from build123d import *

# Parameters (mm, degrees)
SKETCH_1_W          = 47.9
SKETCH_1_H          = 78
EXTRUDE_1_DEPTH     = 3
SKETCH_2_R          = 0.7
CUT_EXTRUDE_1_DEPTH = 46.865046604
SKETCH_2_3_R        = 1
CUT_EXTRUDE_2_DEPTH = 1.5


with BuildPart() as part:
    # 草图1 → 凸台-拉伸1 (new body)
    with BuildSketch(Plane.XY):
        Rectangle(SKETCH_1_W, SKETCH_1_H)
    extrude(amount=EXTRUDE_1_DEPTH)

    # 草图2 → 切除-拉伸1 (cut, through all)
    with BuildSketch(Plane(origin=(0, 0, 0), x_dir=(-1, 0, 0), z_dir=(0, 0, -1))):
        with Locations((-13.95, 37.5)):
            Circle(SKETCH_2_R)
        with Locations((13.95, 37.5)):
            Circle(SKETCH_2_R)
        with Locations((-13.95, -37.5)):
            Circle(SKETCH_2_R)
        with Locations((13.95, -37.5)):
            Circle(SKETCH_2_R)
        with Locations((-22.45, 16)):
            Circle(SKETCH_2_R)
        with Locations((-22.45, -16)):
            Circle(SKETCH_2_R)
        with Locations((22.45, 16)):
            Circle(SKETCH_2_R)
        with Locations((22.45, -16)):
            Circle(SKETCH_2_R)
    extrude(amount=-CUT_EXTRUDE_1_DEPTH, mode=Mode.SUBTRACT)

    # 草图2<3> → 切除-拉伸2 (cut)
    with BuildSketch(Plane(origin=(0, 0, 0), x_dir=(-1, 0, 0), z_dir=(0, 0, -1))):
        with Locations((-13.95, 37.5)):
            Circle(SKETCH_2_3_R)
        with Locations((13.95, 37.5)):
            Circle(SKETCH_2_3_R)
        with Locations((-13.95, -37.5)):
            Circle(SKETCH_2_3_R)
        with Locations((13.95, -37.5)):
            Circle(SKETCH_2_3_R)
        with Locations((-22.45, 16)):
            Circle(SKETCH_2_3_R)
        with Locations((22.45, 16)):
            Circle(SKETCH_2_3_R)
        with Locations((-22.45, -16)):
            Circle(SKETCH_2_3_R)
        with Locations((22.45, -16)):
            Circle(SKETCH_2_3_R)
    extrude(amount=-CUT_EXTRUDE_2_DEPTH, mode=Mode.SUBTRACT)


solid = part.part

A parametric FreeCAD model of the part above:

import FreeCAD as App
import Part
import Sketcher

V = App.Vector
Q = App.Units.Quantity


def add_polygon(sketch, points):
    """Adds a closed chain of lines whose ends are joined by coincident constraints."""
    first, n = sketch.GeometryCount, len(points)
    for a, b in zip(points, points[1:] + points[:1]):
        sketch.addGeometry(Part.LineSegment(App.Vector(*a, 0), App.Vector(*b, 0)), False)
    for i in range(n):
        sketch.addConstraint(Sketcher.Constraint("Coincident", first + i, 2, first + (i + 1) % n, 1))

doc = App.newDocument("Part")
body = doc.addObject("PartDesign::Body", "Body")

# Sketch on XY plane
sketch1 = body.newObject("Sketcher::SketchObject", "Sketch")
sketch1.AttachmentSupport = (doc.getObject("XY_Plane"), [""])
sketch1.MapMode = "FlatFace"
add_polygon(sketch1, [(-24, 39), (-24, -39), (24, -39), (24, 39)])  # lines 0-3
sketch1.addConstraint(Sketcher.Constraint("Vertical", 0))
sketch1.addConstraint(Sketcher.Constraint("Horizontal", 1))
sketch1.addConstraint(Sketcher.Constraint("Vertical", 2))
sketch1.addConstraint(Sketcher.Constraint("Horizontal", 3))
sketch1.addConstraint(Sketcher.Constraint("Symmetric", 0, 2, 2, 2, -1, 1))
sketch1.addConstraint(Sketcher.Constraint("DistanceY", 0, 2, 0, 1, Q("78 mm")))
sketch1.addConstraint(Sketcher.Constraint("DistanceX", 1, 1, 1, 2, Q("47.9 mm")))
pad1 = body.newObject("PartDesign::Pad", "Pad")
pad1.Profile = sketch1
pad1.Length = 3

# Sketch on XY plane
sketch2 = body.newObject("Sketcher::SketchObject", "Sketch001")
sketch2.AttachmentSupport = (doc.getObject("XY_Plane"), [""])
sketch2.MapMode = "FlatFace"
sketch2.addGeometry(Part.Circle(V(13.9, 37.5, 0), V(0, 0, 1), 0.7), False)
sketch2.addGeometry(Part.Circle(V(-13.9, 37.5, 0), V(0, 0, 1), 0.7), False)
sketch2.addGeometry(Part.Circle(V(13.9, -37.5, 0), V(0, 0, 1), 0.7), False)
sketch2.addGeometry(Part.Circle(V(-13.9, -37.5, 0), V(0, 0, 1), 0.7), False)
sketch2.addGeometry(Part.Circle(V(22.4, 16, 0), V(0, 0, 1), 0.7), False)
sketch2.addGeometry(Part.Circle(V(22.4, -16, 0), V(0, 0, 1), 0.7), False)
sketch2.addGeometry(Part.Circle(V(-22.4, 16, 0), V(0, 0, 1), 0.7), False)
sketch2.addGeometry(Part.Circle(V(-22.4, -16, 0), V(0, 0, 1), 0.7), False)
sketch2.addConstraint(Sketcher.Constraint("Equal", 0, 1))
sketch2.addConstraint(Sketcher.Constraint("Equal", 1, 2))
sketch2.addConstraint(Sketcher.Constraint("Equal", 2, 3))
sketch2.addConstraint(Sketcher.Constraint("Equal", 3, 4))
sketch2.addConstraint(Sketcher.Constraint("Equal", 4, 5))
sketch2.addConstraint(Sketcher.Constraint("Equal", 5, 6))
sketch2.addConstraint(Sketcher.Constraint("Equal", 6, 7))
sketch2.addConstraint(Sketcher.Constraint("Symmetric", 1, 3, 2, 3, -1, 1))
sketch2.addConstraint(Sketcher.Constraint("Symmetric", 0, 3, 3, 3, -1, 1))
sketch2.addConstraint(Sketcher.Constraint("Symmetric", 5, 3, 6, 3, -1, 1))
sketch2.addConstraint(Sketcher.Constraint("Symmetric", 4, 3, 7, 3, -1, 1))
sketch2.addConstraint(Sketcher.Constraint("Symmetric", 0, 3, 1, 3, -2))
sketch2.addConstraint(Sketcher.Constraint("Symmetric", 4, 3, 6, 3, -2))
sketch2.addConstraint(Sketcher.Constraint("Diameter", 0, Q("1.4 mm")))
sketch2.addConstraint(Sketcher.Constraint("DistanceY", -1, 1, 4, 3, Q("16 mm")))
sketch2.addConstraint(Sketcher.Constraint("DistanceY", 2, 3, 0, 3, Q("75 mm")))
sketch2.addConstraint(Sketcher.Constraint("DistanceX", 1, 3, 0, 3, Q("27.9 mm")))
sketch2.addConstraint(Sketcher.Constraint("DistanceX", 0, 3, 4, 3, Q("8.5 mm")))
pocket1 = body.newObject("PartDesign::Pocket", "Pocket")
pocket1.Profile = sketch2
pocket1.Type = "ThroughAll"
pocket1.Reversed = True

# Sketch on XY plane
sketch3 = body.newObject("Sketcher::SketchObject", "Sketch002")
sketch3.AttachmentSupport = (doc.getObject("XY_Plane"), [""])
sketch3.MapMode = "FlatFace"
sketch3.addGeometry(Part.Circle(V(13.9, 37.5, 0), V(0, 0, 1), 1), False)
sketch3.addGeometry(Part.Circle(V(-13.9, 37.5, 0), V(0, 0, 1), 1), False)
sketch3.addGeometry(Part.Circle(V(13.9, -37.5, 0), V(0, 0, 1), 1), False)
sketch3.addGeometry(Part.Circle(V(-13.9, -37.5, 0), V(0, 0, 1), 1), False)
sketch3.addGeometry(Part.Circle(V(22.4, 16, 0), V(0, 0, 1), 1), False)
sketch3.addGeometry(Part.Circle(V(-22.4, 16, 0), V(0, 0, 1), 1), False)
sketch3.addGeometry(Part.Circle(V(22.4, -16, 0), V(0, 0, 1), 1), False)
sketch3.addGeometry(Part.Circle(V(-22.4, -16, 0), V(0, 0, 1), 1), False)
sketch3.addConstraint(Sketcher.Constraint("Equal", 0, 1))
sketch3.addConstraint(Sketcher.Constraint("Equal", 1, 2))
sketch3.addConstraint(Sketcher.Constraint("Equal", 2, 3))
sketch3.addConstraint(Sketcher.Constraint("Equal", 3, 4))
sketch3.addConstraint(Sketcher.Constraint("Equal", 4, 5))
sketch3.addConstraint(Sketcher.Constraint("Equal", 5, 6))
sketch3.addConstraint(Sketcher.Constraint("Equal", 6, 7))
sketch3.addConstraint(Sketcher.Constraint("Symmetric", 1, 3, 2, 3, -1, 1))
sketch3.addConstraint(Sketcher.Constraint("Symmetric", 0, 3, 3, 3, -1, 1))
sketch3.addConstraint(Sketcher.Constraint("Symmetric", 5, 3, 6, 3, -1, 1))
sketch3.addConstraint(Sketcher.Constraint("Symmetric", 4, 3, 7, 3, -1, 1))
sketch3.addConstraint(Sketcher.Constraint("Symmetric", 0, 3, 1, 3, -2))
sketch3.addConstraint(Sketcher.Constraint("Symmetric", 4, 3, 5, 3, -2))
sketch3.addConstraint(Sketcher.Constraint("Diameter", 0, Q("2 mm")))
sketch3.addConstraint(Sketcher.Constraint("DistanceY", -1, 1, 4, 3, Q("16 mm")))
sketch3.addConstraint(Sketcher.Constraint("DistanceY", 2, 3, 0, 3, Q("75 mm")))
sketch3.addConstraint(Sketcher.Constraint("DistanceX", 1, 3, 0, 3, Q("27.9 mm")))
sketch3.addConstraint(Sketcher.Constraint("DistanceX", 0, 3, 4, 3, Q("8.5 mm")))
pocket2 = body.newObject("PartDesign::Pocket", "Pocket001")
pocket2.Profile = sketch3
pocket2.Length = 1.5
pocket2.Reversed = True

doc.recompute()
